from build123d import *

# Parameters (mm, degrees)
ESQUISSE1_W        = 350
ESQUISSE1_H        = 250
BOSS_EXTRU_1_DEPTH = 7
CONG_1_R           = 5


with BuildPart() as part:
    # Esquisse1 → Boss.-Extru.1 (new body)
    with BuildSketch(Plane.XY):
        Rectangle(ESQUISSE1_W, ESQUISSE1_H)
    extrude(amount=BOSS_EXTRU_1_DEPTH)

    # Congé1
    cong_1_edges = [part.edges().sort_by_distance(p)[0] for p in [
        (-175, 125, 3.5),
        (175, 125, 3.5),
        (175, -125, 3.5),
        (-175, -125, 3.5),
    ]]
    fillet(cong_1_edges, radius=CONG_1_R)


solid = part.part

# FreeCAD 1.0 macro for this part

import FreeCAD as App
import Part
import Sketcher

V = App.Vector
Q = App.Units.Quantity


def edges_at(feature, points):
    """Names of the edges that pass closest to the given points."""
    edges = feature.Shape.Edges
    near = lambda p: min(range(len(edges)), key=lambda i: edges[i].distToShape(Part.Vertex(*p))[0])
    return sorted({f"Edge{near(p) + 1}" for p in points})

doc = App.newDocument("Part")
body = doc.addObject("PartDesign::Body", "Body")

sketch1 = body.newObject("Sketcher::SketchObject", "Sketch")
sketch1.AttachmentSupport = (doc.getObject("XY_Plane"), [""])
sketch1.MapMode = "FlatFace"
sketch1.addGeometry([
    Part.LineSegment(V(-175, 125, 0), V(-175, -125, 0)),
    Part.LineSegment(V(-175, -125, 0), V(175, -125, 0)),
    Part.LineSegment(V(175, -125, 0), V(175, 125, 0)),
    Part.LineSegment(V(175, 125, 0), V(-175, 125, 0)),
], False)
sketch1.addConstraint([
    Sketcher.Constraint("Coincident", 0, 2, 1, 1),
    Sketcher.Constraint("Coincident", 1, 2, 2, 1),
    Sketcher.Constraint("Coincident", 2, 2, 3, 1),
    Sketcher.Constraint("Coincident", 3, 2, 0, 1),
    Sketcher.Constraint("Vertical", 0),
    Sketcher.Constraint("Horizontal", 1),
    Sketcher.Constraint("Vertical", 2),
    Sketcher.Constraint("Horizontal", 3),
    Sketcher.Constraint("Symmetric", 0, 2, 2, 2, -1, 1),
    Sketcher.Constraint("DistanceX", 1, 1, 1, 2, Q("350 mm")),
    Sketcher.Constraint("DistanceY", 0, 2, 0, 1, Q("250 mm")),
])
pad1 = body.newObject("PartDesign::Pad", "Pad")
pad1.Profile = sketch1
pad1.Length = 7
doc.recompute()

fillet = body.newObject("PartDesign::Fillet", "Fillet")
fillet.Base = (pad1, edges_at(pad1, [
    (-175, 125, 3.5),
    (175, 125, 3.5),
    (175, -125, 3.5),
    (-175, -125, 3.5),
]))
fillet.Radius = 5

doc.recompute()
